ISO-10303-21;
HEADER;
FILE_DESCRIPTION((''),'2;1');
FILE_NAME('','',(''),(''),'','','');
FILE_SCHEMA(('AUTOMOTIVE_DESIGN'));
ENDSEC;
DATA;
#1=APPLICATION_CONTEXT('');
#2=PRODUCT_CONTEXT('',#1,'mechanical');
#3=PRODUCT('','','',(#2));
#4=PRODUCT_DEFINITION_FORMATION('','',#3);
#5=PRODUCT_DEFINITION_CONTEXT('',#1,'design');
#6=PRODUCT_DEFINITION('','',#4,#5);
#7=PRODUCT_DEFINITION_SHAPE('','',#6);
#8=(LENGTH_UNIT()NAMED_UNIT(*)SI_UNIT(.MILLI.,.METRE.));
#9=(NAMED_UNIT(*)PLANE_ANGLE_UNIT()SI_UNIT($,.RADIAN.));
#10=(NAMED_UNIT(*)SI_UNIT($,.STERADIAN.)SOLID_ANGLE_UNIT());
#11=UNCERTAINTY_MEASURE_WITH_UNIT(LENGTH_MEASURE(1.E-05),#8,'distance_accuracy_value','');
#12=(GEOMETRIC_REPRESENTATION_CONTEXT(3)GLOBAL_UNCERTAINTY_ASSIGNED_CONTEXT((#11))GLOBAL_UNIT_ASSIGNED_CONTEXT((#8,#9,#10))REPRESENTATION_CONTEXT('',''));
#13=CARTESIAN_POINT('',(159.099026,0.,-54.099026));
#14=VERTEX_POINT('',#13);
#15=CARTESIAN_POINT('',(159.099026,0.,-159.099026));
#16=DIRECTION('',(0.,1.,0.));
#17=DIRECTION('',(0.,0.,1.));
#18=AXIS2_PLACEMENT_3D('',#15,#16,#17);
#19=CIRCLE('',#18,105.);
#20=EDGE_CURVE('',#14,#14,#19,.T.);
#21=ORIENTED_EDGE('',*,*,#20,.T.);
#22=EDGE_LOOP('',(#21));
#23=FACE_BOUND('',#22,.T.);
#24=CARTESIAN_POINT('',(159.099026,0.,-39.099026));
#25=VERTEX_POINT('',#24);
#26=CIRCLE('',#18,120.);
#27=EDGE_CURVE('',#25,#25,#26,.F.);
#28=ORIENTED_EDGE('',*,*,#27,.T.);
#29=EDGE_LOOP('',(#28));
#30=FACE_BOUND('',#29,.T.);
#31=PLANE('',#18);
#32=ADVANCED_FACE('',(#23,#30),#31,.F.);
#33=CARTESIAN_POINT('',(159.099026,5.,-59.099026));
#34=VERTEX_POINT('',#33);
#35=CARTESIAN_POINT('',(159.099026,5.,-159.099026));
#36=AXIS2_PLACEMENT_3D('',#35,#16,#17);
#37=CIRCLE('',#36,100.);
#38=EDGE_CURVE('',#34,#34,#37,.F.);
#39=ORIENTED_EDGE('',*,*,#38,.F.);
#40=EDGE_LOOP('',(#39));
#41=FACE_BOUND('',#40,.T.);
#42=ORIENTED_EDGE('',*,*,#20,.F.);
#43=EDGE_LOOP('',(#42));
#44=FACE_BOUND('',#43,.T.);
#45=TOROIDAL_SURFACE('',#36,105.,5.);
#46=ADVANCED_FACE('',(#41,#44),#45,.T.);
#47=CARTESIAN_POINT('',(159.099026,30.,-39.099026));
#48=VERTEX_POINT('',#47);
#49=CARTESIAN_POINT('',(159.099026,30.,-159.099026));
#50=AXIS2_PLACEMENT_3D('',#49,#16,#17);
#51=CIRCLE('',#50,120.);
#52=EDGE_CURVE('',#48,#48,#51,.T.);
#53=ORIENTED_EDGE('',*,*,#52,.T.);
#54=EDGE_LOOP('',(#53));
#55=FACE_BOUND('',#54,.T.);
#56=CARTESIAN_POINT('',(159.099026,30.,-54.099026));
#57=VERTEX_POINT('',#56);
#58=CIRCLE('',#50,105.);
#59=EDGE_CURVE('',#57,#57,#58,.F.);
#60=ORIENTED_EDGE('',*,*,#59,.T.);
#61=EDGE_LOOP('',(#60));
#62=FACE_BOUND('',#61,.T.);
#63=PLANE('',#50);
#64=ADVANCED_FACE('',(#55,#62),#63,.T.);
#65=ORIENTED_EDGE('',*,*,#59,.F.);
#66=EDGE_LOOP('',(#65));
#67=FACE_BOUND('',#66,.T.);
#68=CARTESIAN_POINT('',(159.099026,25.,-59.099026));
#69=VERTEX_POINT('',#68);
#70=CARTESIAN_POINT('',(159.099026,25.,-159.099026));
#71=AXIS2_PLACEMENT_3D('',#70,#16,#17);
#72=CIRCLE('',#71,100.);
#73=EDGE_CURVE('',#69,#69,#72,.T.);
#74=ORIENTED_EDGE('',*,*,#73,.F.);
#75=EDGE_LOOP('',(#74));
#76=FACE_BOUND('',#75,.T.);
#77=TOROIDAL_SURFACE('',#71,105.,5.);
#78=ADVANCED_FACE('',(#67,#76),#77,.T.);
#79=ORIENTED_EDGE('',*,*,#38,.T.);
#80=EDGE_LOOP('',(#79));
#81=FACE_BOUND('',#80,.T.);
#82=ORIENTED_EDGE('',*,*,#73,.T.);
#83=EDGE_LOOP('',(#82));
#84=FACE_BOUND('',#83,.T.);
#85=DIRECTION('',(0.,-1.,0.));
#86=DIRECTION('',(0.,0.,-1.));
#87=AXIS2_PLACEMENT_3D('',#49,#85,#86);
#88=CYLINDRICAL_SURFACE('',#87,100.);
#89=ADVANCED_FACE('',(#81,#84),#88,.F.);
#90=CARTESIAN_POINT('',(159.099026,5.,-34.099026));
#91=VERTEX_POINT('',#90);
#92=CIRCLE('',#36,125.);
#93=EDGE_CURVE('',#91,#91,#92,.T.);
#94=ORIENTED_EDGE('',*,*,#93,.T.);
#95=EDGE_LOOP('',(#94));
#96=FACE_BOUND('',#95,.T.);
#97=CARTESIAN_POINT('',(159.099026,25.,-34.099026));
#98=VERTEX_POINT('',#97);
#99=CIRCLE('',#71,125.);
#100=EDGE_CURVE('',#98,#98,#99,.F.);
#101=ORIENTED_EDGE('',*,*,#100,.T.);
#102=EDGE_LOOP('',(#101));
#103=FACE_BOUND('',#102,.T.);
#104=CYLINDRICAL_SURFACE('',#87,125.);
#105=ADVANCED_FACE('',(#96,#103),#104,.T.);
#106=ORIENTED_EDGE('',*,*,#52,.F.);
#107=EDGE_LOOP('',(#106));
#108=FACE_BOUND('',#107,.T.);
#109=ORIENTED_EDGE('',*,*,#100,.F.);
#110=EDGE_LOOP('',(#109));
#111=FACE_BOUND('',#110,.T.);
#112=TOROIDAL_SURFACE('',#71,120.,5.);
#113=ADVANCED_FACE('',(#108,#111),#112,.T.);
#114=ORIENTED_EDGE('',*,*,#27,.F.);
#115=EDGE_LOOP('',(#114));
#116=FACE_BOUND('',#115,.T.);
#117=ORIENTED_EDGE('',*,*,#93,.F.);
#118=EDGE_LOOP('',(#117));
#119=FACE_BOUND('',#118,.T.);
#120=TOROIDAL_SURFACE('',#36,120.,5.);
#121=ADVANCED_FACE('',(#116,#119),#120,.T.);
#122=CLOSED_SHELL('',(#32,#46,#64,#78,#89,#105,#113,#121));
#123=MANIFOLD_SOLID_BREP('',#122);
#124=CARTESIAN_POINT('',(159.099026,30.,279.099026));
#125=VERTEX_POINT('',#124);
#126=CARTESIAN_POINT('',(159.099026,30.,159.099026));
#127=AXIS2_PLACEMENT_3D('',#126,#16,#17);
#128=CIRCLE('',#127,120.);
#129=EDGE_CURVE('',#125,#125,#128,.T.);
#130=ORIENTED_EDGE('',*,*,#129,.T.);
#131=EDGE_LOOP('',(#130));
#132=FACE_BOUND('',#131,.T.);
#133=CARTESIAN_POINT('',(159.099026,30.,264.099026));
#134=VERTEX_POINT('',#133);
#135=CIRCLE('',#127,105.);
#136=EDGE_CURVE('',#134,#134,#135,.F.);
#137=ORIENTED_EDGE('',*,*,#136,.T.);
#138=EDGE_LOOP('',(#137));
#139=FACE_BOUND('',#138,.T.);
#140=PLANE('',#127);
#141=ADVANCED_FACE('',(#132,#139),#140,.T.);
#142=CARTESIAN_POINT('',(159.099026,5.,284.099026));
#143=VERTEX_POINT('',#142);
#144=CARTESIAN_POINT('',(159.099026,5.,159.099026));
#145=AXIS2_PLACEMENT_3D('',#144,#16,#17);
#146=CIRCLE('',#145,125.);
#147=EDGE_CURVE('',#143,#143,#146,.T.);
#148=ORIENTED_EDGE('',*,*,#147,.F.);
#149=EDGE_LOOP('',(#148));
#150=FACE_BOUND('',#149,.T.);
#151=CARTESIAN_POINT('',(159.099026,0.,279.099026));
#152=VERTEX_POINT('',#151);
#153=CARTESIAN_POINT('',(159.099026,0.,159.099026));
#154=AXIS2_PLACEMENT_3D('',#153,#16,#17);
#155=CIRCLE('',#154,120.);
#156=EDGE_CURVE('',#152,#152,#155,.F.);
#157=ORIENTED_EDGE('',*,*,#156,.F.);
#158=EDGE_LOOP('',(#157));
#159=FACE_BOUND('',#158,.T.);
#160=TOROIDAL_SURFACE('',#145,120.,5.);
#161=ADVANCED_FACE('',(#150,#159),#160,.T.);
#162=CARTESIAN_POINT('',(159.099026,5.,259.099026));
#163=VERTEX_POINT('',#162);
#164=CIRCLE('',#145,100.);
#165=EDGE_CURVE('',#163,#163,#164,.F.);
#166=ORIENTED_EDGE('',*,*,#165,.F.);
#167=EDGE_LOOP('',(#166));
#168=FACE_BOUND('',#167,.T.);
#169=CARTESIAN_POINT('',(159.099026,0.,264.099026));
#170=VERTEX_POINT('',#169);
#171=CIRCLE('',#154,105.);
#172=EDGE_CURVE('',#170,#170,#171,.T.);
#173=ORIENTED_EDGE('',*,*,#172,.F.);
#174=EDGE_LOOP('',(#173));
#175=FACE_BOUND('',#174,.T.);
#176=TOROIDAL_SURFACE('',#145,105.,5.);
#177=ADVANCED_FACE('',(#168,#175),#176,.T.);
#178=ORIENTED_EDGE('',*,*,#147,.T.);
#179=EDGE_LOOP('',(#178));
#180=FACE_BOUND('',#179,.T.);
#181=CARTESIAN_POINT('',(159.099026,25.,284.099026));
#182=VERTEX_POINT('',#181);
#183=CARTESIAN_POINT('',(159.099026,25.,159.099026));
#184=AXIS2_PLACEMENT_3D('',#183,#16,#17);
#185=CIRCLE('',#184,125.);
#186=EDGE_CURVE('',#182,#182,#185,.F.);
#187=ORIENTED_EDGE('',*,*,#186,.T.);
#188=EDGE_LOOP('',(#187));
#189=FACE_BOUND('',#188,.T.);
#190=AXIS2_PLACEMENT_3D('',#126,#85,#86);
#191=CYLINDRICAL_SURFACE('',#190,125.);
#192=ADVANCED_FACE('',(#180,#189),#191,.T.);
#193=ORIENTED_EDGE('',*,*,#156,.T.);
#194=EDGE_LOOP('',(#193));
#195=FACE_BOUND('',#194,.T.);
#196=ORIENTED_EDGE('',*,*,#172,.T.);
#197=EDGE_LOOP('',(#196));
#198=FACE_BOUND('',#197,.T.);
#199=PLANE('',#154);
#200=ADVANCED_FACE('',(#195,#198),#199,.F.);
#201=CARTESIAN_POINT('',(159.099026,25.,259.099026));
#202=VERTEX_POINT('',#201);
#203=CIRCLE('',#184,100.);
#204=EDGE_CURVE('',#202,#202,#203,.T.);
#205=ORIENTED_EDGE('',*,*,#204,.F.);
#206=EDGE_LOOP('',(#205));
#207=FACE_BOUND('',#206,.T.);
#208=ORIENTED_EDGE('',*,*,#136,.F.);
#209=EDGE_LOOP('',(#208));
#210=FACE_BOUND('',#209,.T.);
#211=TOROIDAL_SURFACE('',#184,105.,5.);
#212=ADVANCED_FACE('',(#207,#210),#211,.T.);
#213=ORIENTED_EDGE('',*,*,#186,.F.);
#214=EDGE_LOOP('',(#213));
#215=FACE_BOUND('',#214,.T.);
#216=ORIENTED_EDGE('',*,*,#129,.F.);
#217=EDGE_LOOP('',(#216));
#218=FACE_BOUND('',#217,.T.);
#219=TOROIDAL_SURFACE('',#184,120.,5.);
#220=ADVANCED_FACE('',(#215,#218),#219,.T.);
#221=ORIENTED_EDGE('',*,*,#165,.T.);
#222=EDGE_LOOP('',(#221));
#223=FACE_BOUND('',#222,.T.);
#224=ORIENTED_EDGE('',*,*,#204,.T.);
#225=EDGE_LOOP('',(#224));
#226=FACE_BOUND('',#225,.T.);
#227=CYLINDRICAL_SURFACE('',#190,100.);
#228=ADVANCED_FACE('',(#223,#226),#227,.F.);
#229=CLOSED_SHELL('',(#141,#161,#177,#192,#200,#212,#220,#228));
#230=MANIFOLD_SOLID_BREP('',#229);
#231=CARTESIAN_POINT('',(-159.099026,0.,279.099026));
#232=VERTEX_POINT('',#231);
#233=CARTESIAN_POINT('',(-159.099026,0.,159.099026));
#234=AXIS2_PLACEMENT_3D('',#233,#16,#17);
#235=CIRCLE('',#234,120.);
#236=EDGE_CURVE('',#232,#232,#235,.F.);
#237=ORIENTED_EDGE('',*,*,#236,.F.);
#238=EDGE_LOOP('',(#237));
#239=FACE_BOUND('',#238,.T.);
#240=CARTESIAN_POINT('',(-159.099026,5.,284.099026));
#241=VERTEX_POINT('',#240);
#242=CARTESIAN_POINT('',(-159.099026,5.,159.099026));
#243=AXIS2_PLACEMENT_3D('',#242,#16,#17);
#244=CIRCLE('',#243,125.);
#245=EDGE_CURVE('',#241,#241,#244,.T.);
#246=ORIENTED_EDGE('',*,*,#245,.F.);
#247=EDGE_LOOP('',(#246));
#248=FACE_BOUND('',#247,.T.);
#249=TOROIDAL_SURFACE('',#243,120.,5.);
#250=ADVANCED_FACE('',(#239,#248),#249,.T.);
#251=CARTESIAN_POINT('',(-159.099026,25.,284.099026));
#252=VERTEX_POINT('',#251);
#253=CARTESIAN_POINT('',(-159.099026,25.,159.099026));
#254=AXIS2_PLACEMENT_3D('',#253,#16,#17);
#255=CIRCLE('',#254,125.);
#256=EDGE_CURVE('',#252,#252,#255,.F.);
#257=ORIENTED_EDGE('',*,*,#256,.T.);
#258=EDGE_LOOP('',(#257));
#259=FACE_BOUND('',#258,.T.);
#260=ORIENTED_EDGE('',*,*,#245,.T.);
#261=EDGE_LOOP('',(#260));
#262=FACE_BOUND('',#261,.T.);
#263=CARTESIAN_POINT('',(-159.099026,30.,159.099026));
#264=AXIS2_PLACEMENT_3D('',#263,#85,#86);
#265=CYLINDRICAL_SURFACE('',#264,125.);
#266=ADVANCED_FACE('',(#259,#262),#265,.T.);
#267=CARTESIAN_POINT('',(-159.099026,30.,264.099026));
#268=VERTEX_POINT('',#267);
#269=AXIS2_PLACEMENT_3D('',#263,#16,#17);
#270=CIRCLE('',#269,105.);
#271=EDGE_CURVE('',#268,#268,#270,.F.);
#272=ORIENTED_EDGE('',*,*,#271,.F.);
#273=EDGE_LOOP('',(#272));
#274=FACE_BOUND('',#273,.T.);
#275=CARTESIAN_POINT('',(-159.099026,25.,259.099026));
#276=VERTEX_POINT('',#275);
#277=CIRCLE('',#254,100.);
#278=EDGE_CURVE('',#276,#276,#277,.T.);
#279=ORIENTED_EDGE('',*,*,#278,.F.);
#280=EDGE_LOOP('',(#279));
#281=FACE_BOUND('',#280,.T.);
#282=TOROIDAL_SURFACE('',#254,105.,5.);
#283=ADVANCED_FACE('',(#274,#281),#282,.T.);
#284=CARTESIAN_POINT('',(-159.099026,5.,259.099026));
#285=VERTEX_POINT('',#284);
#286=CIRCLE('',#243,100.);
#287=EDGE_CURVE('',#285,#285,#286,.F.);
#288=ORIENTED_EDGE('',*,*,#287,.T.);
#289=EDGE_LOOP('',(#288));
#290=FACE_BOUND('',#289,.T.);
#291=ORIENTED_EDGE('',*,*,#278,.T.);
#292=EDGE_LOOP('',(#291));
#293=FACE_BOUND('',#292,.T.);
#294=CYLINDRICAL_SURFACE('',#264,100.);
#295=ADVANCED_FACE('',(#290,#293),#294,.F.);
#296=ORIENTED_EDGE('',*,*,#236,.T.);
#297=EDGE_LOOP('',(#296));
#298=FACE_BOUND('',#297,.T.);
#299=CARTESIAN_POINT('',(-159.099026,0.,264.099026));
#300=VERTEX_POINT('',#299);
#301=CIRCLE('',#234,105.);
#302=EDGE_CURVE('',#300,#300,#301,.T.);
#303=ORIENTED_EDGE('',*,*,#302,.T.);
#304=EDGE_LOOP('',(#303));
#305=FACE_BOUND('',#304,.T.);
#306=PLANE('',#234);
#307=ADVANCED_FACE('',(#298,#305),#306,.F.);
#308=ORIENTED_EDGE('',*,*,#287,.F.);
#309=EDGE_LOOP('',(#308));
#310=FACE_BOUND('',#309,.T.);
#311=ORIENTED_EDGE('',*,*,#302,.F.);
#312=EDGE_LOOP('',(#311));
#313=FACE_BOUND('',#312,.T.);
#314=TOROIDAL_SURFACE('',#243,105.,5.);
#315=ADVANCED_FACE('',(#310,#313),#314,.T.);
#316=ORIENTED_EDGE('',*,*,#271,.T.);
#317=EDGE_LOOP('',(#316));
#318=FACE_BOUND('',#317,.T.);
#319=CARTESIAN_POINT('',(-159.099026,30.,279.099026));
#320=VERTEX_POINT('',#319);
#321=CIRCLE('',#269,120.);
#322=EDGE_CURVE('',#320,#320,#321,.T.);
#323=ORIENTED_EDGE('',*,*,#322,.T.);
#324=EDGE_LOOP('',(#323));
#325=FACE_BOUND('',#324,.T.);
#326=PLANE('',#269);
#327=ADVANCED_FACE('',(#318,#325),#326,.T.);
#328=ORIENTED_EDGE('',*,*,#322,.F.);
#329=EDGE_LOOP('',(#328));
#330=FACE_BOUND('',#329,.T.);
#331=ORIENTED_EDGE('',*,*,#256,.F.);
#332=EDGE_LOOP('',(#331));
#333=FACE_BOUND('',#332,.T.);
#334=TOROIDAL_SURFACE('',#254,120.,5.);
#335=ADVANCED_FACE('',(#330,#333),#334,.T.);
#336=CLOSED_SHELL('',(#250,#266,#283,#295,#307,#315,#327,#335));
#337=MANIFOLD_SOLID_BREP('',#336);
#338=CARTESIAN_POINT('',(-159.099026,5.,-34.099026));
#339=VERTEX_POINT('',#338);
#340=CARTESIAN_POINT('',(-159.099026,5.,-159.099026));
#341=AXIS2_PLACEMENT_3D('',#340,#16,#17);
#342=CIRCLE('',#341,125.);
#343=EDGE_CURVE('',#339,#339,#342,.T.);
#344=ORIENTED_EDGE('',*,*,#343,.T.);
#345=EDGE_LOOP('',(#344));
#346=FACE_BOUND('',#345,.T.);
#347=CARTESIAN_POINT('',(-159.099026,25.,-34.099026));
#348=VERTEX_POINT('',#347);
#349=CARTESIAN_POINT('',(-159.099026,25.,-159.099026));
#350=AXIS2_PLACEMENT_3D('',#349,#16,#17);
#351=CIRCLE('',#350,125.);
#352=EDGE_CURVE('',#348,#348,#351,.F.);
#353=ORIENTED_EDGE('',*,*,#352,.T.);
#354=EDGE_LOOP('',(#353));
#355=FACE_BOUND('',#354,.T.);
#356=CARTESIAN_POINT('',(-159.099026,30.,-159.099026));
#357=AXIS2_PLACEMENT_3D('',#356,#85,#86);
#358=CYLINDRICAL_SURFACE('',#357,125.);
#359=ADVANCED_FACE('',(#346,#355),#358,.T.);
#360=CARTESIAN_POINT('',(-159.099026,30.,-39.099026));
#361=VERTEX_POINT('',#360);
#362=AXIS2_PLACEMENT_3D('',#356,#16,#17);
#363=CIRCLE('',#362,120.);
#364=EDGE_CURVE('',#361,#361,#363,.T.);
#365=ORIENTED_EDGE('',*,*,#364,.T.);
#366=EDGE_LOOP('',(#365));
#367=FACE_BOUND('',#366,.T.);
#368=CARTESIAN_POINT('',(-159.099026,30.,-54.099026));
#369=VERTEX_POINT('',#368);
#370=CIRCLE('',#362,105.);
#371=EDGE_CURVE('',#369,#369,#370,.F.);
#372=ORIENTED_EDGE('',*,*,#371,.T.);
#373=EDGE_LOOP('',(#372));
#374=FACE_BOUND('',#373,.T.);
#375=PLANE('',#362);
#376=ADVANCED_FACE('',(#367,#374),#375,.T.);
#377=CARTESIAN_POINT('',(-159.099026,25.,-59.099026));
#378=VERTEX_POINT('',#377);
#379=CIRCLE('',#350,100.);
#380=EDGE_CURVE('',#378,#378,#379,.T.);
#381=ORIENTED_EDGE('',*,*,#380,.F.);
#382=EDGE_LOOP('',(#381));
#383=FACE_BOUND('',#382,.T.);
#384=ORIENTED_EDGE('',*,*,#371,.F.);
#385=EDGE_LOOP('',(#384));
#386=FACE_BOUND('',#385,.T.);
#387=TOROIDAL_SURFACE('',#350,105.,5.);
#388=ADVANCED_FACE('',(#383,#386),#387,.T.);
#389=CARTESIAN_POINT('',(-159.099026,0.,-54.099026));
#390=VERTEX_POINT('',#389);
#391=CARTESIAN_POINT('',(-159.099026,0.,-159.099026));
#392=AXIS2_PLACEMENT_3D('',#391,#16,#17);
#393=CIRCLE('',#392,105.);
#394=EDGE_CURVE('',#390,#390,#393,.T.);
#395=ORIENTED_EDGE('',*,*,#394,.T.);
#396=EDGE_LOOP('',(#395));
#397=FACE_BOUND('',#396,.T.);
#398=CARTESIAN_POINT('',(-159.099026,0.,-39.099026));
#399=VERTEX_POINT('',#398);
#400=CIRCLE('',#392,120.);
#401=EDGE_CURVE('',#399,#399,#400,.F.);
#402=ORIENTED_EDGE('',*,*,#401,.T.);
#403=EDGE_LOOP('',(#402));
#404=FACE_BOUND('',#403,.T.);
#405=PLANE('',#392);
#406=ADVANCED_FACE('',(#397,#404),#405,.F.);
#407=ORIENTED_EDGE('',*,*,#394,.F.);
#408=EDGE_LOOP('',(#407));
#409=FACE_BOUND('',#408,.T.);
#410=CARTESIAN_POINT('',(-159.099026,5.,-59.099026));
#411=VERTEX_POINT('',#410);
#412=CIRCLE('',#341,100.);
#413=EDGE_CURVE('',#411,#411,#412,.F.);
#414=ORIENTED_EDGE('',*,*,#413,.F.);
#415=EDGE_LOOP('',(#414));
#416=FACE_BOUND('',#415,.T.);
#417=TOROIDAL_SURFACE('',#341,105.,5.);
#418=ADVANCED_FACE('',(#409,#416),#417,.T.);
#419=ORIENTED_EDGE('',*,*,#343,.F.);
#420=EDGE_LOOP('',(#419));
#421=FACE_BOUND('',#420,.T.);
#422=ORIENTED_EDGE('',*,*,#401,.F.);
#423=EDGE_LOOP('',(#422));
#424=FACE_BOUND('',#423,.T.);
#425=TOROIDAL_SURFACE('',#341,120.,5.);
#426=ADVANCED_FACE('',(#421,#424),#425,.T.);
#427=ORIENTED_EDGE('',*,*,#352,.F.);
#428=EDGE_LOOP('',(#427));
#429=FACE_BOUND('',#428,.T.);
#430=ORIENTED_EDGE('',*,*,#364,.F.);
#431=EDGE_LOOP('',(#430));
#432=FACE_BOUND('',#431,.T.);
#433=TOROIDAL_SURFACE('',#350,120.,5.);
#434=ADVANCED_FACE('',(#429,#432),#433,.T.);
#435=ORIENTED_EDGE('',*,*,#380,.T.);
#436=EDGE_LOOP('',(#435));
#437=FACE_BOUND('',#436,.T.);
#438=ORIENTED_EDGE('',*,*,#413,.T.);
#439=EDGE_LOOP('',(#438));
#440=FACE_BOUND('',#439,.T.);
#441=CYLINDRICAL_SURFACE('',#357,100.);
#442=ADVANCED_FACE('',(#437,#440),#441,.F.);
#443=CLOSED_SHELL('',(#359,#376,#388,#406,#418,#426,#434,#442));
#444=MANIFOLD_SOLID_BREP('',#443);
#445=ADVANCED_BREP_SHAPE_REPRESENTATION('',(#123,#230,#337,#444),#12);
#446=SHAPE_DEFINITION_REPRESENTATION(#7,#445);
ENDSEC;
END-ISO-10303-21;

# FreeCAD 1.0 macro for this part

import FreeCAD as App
import Part
import Sketcher

V = App.Vector
Q = App.Units.Quantity


def edges_at(feature, points):
    """Names of the edges that pass closest to the given points."""
    edges = feature.Shape.Edges
    near = lambda p: min(range(len(edges)), key=lambda i: edges[i].distToShape(Part.Vertex(*p))[0])
    return sorted({f"Edge{near(p) + 1}" for p in points})

doc = App.newDocument("Part")
params = doc.addObject("Spreadsheet::Sheet", "Params")
for row, (alias, value) in enumerate([
    ("sketch1_diameter", "250 mm"),
    ("sketch1_diameter2", "200 mm"),
    ("pad1_length", "30 mm"),
    ("fillet_radius", "5 mm"),
    ("sketch2_diameter", "250 mm"),
    ("sketch2_diameter2", "200 mm"),
    ("pad2_length", "30 mm"),
    ("fillet2_radius", "5 mm"),
    ("sketch3_diameter", "250 mm"),
    ("sketch3_diameter2", "200 mm"),
    ("pad3_length", "30 mm"),
    ("fillet3_radius", "5 mm"),
    ("sketch4_diameter", "250 mm"),
    ("sketch4_diameter2", "200 mm"),
    ("pad4_length", "30 mm"),
    ("fillet4_radius", "5 mm"),
], start=1):
    params.set(f"A{row}", alias)
    params.set(f"B{row}", "=" + value)
    params.setAlias(f"B{row}", alias)

body = doc.addObject("PartDesign::Body", "Body")

# Sketch on XZ plane
sketch1 = doc.addObject("Sketcher::SketchObject", "Sketch")
body.addObject(sketch1)
sketch1.AttachmentSupport = (doc.XZ_Plane, [""])
sketch1.MapMode = "FlatFace"
sketch1.addGeometry([
    Part.Circle(V(-159, -159, 0), V(0, 0, 1), 125),
    Part.Circle(V(-159, -159, 0), V(0, 0, 1), 100),
], False)
sketch1.addConstraint([
    Sketcher.Constraint("Coincident", 1, 3, 0, 3),
    Sketcher.Constraint("Diameter", 0, Q("250 mm")),
    Sketcher.Constraint("Diameter", 1, Q("200 mm")),
    Sketcher.Constraint("DistanceX", 0, 3, -1, 1, Q("159.099026 mm")),
    Sketcher.Constraint("DistanceY", 0, 3, -1, 1, Q("159.099026 mm")),
])
sketch1.setExpression("Constraints[1]", "Params.sketch1_diameter")
sketch1.setExpression("Constraints[2]", "Params.sketch1_diameter2")
pad1 = doc.addObject("PartDesign::Pad", "Pad")
body.addObject(pad1)
pad1.Profile = sketch1
pad1.setExpression("Length", "Params.pad1_length")
pad1.Reversed = True
doc.recompute()

fillet = doc.addObject("PartDesign::Fillet", "Fillet")
body.addObject(fillet)
fillet.Base = (pad1, edges_at(pad1, [
    (-159.099, 0, -284.099),
    (-159.099, 30, -284.099),
    (-159.099, 0, -259.099),
    (-159.099, 30, -259.099),
]))
fillet.setExpression("Radius", "Params.fillet_radius")
body2 = doc.addObject("PartDesign::Body", "Body001")

# Sketch on XZ plane
sketch2 = doc.addObject("Sketcher::SketchObject", "Sketch001")
body2.addObject(sketch2)
sketch2.AttachmentSupport = (doc.getObject("XZ_Plane001"), [""])
sketch2.MapMode = "FlatFace"
sketch2.addGeometry([
    Part.Circle(V(159, -159, 0), V(0, 0, 1), 125),
    Part.Circle(V(159, -159, 0), V(0, 0, 1), 100),
], False)
sketch2.addConstraint([
    Sketcher.Constraint("Coincident", 1, 3, 0, 3),
    Sketcher.Constraint("Diameter", 0, Q("250 mm")),
    Sketcher.Constraint("Diameter", 1, Q("200 mm")),
    Sketcher.Constraint("DistanceX", -1, 1, 0, 3, Q("159.099026 mm")),
    Sketcher.Constraint("DistanceY", 0, 3, -1, 1, Q("159.099026 mm")),
])
sketch2.setExpression("Constraints[1]", "Params.sketch2_diameter")
sketch2.setExpression("Constraints[2]", "Params.sketch2_diameter2")
pad2 = doc.addObject("PartDesign::Pad", "Pad001")
body2.addObject(pad2)
pad2.Profile = sketch2
pad2.setExpression("Length", "Params.pad2_length")
pad2.Reversed = True
doc.recompute()

fillet2 = doc.addObject("PartDesign::Fillet", "Fillet001")
body2.addObject(fillet2)
fillet2.Base = (pad2, edges_at(pad2, [
    (159.099, 0, -284.099),
    (159.099, 30, -284.099),
    (159.099, 0, -259.099),
    (159.099, 30, -259.099),
]))
fillet2.setExpression("Radius", "Params.fillet2_radius")
body3 = doc.addObject("PartDesign::Body", "Body002")

# Sketch on XZ plane
sketch3 = doc.addObject("Sketcher::SketchObject", "Sketch002")
body3.addObject(sketch3)
sketch3.AttachmentSupport = (doc.getObject("XZ_Plane002"), [""])
sketch3.MapMode = "FlatFace"
sketch3.addGeometry([
    Part.Circle(V(-159, 159, 0), V(0, 0, 1), 125),
    Part.Circle(V(-159, 159, 0), V(0, 0, 1), 100),
], False)
sketch3.addConstraint([
    Sketcher.Constraint("Coincident", 1, 3, 0, 3),
    Sketcher.Constraint("Diameter", 0, Q("250 mm")),
    Sketcher.Constraint("Diameter", 1, Q("200 mm")),
    Sketcher.Constraint("DistanceX", 0, 3, -1, 1, Q("159.099026 mm")),
    Sketcher.Constraint("DistanceY", -1, 1, 0, 3, Q("159.099026 mm")),
])
sketch3.setExpression("Constraints[1]", "Params.sketch3_diameter")
sketch3.setExpression("Constraints[2]", "Params.sketch3_diameter2")
pad3 = doc.addObject("PartDesign::Pad", "Pad002")
body3.addObject(pad3)
pad3.Profile = sketch3
pad3.setExpression("Length", "Params.pad3_length")
pad3.Reversed = True
doc.recompute()

fillet3 = doc.addObject("PartDesign::Fillet", "Fillet002")
body3.addObject(fillet3)
fillet3.Base = (pad3, edges_at(pad3, [
    (-159.099, 0, 34.099),
    (-159.099, 30, 34.099),
    (-159.099, 0, 59.099),
    (-159.099, 30, 59.099),
]))
fillet3.setExpression("Radius", "Params.fillet3_radius")
body4 = doc.addObject("PartDesign::Body", "Body003")

# Sketch on XZ plane
sketch4 = doc.addObject("Sketcher::SketchObject", "Sketch003")
body4.addObject(sketch4)
sketch4.AttachmentSupport = (doc.getObject("XZ_Plane003"), [""])
sketch4.MapMode = "FlatFace"
sketch4.addGeometry([
    Part.Circle(V(159, 159, 0), V(0, 0, 1), 125),
    Part.Circle(V(159, 159, 0), V(0, 0, 1), 100),
], False)
sketch4.addConstraint([
    Sketcher.Constraint("Coincident", 1, 3, 0, 3),
    Sketcher.Constraint("Diameter", 0, Q("250 mm")),
    Sketcher.Constraint("Diameter", 1, Q("200 mm")),
    Sketcher.Constraint("DistanceX", -1, 1, 0, 3, Q("159.099026 mm")),
    Sketcher.Constraint("DistanceY", -1, 1, 0, 3, Q("159.099026 mm")),
])
sketch4.setExpression("Constraints[1]", "Params.sketch4_diameter")
sketch4.setExpression("Constraints[2]", "Params.sketch4_diameter2")
pad4 = doc.addObject("PartDesign::Pad", "Pad003")
body4.addObject(pad4)
pad4.Profile = sketch4
pad4.setExpression("Length", "Params.pad4_length")
pad4.Reversed = True
doc.recompute()

fillet4 = doc.addObject("PartDesign::Fillet", "Fillet003")
body4.addObject(fillet4)
fillet4.Base = (pad4, edges_at(pad4, [
    (159.099, 0, 34.099),
    (159.099, 30, 34.099),
    (159.099, 0, 59.099),
    (159.099, 30, 59.099),
]))
fillet4.setExpression("Radius", "Params.fillet4_radius")

doc.recompute()
